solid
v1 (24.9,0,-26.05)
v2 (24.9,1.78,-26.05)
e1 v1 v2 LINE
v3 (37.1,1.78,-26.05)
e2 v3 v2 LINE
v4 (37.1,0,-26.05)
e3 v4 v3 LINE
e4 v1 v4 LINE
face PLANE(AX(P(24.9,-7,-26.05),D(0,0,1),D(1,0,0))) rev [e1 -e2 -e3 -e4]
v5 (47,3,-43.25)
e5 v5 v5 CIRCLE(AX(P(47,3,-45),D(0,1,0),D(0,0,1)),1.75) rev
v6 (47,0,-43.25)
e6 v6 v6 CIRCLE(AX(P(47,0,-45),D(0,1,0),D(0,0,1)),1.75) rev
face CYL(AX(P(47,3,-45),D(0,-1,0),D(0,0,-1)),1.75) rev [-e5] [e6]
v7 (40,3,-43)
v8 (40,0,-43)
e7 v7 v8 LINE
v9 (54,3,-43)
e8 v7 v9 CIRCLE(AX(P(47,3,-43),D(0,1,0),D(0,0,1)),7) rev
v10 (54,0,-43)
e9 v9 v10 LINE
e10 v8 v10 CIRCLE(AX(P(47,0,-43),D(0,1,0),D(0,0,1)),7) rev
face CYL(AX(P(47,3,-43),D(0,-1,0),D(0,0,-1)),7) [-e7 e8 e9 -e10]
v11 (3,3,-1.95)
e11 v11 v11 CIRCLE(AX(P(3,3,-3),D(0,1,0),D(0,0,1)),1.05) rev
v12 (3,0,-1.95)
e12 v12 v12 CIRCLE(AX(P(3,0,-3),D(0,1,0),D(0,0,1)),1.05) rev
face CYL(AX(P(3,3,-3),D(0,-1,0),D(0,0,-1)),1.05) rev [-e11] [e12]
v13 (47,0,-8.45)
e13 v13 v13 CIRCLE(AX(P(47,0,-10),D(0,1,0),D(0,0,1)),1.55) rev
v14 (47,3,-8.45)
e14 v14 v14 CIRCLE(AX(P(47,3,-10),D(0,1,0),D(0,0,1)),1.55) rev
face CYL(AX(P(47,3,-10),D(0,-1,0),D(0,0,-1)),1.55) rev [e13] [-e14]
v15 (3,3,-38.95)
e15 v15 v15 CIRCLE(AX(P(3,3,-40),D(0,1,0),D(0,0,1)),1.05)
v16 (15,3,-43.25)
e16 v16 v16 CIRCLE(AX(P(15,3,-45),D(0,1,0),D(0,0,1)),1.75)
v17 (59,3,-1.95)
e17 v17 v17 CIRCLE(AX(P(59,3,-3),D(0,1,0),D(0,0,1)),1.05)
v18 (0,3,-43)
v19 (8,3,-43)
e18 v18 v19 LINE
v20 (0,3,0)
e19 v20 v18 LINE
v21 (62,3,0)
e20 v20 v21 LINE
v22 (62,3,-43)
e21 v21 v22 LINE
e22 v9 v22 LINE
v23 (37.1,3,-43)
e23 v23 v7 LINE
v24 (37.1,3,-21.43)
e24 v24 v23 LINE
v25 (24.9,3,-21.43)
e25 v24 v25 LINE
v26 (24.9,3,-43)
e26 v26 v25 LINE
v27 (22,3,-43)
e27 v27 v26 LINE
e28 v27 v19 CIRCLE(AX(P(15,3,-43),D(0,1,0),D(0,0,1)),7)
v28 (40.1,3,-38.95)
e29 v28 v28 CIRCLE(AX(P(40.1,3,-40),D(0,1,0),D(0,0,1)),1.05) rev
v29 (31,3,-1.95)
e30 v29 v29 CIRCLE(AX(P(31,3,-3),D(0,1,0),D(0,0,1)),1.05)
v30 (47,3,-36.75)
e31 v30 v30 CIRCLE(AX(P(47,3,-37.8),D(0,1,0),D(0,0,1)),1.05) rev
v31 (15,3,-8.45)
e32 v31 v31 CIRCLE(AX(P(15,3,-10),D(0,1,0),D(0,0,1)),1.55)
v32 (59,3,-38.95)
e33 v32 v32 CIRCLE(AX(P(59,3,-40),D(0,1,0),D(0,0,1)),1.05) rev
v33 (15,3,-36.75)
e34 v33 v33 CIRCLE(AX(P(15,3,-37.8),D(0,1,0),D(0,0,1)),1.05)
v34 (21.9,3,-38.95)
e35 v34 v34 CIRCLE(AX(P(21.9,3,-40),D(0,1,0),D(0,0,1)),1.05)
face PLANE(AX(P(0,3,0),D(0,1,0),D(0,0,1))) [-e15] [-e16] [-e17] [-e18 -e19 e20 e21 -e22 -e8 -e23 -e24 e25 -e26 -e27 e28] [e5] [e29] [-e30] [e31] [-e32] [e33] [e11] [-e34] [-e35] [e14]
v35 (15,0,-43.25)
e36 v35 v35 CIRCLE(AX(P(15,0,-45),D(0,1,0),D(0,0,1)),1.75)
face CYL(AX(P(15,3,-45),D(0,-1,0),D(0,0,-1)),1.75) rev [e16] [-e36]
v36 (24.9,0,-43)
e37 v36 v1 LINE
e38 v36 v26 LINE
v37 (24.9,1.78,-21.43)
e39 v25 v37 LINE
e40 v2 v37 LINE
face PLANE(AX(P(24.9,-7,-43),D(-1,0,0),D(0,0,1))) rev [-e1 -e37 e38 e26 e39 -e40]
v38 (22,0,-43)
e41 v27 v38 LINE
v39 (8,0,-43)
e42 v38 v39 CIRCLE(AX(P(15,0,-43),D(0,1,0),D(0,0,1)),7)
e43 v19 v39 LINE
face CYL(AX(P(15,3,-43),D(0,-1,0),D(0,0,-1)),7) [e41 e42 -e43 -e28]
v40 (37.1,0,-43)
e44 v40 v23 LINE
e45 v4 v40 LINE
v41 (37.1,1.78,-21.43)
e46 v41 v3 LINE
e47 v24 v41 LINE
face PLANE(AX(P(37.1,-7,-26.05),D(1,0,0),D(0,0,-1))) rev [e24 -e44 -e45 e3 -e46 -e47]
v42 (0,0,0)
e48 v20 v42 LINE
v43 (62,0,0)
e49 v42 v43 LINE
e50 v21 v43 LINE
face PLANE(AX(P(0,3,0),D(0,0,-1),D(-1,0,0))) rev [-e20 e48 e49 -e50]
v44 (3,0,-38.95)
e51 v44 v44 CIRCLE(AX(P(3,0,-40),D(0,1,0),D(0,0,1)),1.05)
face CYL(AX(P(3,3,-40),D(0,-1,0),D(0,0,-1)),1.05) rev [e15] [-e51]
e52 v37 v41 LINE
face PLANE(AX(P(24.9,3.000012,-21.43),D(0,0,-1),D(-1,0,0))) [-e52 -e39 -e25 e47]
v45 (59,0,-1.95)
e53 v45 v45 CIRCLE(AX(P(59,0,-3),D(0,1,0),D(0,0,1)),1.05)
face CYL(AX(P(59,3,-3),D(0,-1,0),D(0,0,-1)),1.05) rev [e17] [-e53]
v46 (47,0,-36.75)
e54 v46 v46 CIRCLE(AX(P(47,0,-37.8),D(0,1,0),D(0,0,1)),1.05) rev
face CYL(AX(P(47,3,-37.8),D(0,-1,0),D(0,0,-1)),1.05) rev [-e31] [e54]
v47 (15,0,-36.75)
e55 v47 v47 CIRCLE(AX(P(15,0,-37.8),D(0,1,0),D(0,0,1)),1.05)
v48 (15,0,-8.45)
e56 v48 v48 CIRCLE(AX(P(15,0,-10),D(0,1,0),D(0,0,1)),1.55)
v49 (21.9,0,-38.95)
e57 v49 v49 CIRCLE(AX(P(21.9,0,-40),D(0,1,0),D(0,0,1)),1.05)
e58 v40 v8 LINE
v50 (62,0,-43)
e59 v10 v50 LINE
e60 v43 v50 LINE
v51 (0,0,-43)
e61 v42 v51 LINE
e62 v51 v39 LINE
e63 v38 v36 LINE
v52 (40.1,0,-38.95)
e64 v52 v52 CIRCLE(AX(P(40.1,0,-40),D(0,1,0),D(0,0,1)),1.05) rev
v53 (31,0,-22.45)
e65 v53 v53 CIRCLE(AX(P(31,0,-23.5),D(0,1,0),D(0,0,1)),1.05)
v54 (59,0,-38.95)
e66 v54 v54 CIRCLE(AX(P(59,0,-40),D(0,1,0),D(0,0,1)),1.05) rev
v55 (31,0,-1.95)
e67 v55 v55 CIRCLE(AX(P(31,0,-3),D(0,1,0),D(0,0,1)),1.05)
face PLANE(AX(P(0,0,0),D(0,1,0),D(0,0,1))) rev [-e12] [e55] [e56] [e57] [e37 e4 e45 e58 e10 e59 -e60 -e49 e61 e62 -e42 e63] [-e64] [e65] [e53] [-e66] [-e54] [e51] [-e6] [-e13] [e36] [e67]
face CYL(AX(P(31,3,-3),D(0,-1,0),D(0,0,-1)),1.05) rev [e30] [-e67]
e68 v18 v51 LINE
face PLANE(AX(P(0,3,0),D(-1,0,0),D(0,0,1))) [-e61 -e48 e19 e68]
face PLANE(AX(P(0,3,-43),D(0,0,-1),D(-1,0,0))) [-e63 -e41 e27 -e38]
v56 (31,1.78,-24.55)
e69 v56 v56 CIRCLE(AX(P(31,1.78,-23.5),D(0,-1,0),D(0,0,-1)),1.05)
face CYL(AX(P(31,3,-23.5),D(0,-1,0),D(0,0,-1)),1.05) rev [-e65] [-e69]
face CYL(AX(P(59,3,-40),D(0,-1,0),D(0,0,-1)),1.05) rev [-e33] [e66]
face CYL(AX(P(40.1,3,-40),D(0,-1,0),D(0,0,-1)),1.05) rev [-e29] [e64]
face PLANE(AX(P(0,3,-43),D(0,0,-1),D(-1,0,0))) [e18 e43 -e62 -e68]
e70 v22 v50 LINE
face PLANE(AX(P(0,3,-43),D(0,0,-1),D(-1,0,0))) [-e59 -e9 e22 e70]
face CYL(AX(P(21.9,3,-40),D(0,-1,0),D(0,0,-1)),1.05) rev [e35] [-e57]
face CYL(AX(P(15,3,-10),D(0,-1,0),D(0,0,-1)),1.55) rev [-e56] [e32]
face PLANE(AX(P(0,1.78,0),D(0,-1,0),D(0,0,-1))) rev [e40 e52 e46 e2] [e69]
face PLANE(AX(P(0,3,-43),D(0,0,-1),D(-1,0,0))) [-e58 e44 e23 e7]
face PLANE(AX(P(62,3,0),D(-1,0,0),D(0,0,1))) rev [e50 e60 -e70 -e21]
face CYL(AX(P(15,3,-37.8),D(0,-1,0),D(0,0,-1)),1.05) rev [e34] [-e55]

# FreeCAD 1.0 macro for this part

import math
import FreeCAD as App
import Part
import Sketcher

doc = App.newDocument("Part")
body = doc.addObject("PartDesign::Body", "Body")

sketch1 = body.newObject("Sketcher::SketchObject", "Sketch")
sketch1.AttachmentSupport = (doc.getObject("XZ_Plane"), [""])
sketch1.MapMode = "FlatFace"
sketch1.addGeometry([
    Part.LineSegment(App.Vector(0, -43, 0), App.Vector(0, 0, 0)),
    Part.LineSegment(App.Vector(0, 0, 0), App.Vector(62, 0, 0)),
    Part.LineSegment(App.Vector(62, 0, 0), App.Vector(62, -43, 0)),
    Part.LineSegment(App.Vector(62, -43, 0), App.Vector(54, -43, 0)),
    Part.ArcOfCircle(Part.Circle(App.Vector(47, -43, 0), App.Vector(0, 0, 1), 7), math.radians(180), math.radians(360)),
    Part.LineSegment(App.Vector(40, -43, 0), App.Vector(22, -43, 0)),
    Part.ArcOfCircle(Part.Circle(App.Vector(15, -43, 0), App.Vector(0, 0, 1), 7), math.radians(180), math.radians(360)),
    Part.LineSegment(App.Vector(8, -43, 0), App.Vector(0, -43, 0)),
    Part.Circle(App.Vector(3, -3, 0), App.Vector(0, 0, 1), 1.1),
    Part.Circle(App.Vector(15, -10, 0), App.Vector(0, 0, 1), 1.6),
    Part.Circle(App.Vector(31, -3, 0), App.Vector(0, 0, 1), 1.1),
    Part.Circle(App.Vector(59, -3, 0), App.Vector(0, 0, 1), 1.1),
    Part.Circle(App.Vector(47, -10, 0), App.Vector(0, 0, 1), 1.6),
    Part.Circle(App.Vector(31, -23.5, 0), App.Vector(0, 0, 1), 1.1),
    Part.Circle(App.Vector(3, -40, 0), App.Vector(0, 0, 1), 1.1),
    Part.Circle(App.Vector(15, -37.8, 0), App.Vector(0, 0, 1), 1.1),
    Part.Circle(App.Vector(15, -45, 0), App.Vector(0, 0, 1), 1.8),
    Part.Circle(App.Vector(21.9, -40, 0), App.Vector(0, 0, 1), 1.1),
    Part.Circle(App.Vector(40.1, -40, 0), App.Vector(0, 0, 1), 1.1),
    Part.Circle(App.Vector(47, -37.8, 0), App.Vector(0, 0, 1), 1.1),
    Part.Circle(App.Vector(59, -40, 0), App.Vector(0, 0, 1), 1.1),
    Part.Circle(App.Vector(47, -45, 0), App.Vector(0, 0, 1), 1.8),
], False)
sketch1.addConstraint([
    Sketcher.Constraint("Coincident", 0, 2, 1, 1),
    Sketcher.Constraint("Coincident", 1, 2, 2, 1),
    Sketcher.Constraint("Coincident", 2, 2, 3, 1),
    Sketcher.Constraint("Coincident", 3, 2, 4, 2),
    Sketcher.Constraint("Coincident", 4, 1, 5, 1),
    Sketcher.Constraint("Coincident", 5, 2, 6, 2),
    Sketcher.Constraint("Coincident", 6, 1, 7, 1),
    Sketcher.Constraint("Coincident", 7, 2, 0, 1),
    Sketcher.Constraint("Vertical", 0),
    Sketcher.Constraint("Horizontal", 1),
    Sketcher.Constraint("Vertical", 2),
    Sketcher.Constraint("Horizontal", 3),
    Sketcher.Constraint("Horizontal", 5),
    Sketcher.Constraint("Horizontal", 7),
    Sketcher.Constraint("Coincident", 0, 2, -1, 1),
    Sketcher.Constraint("Equal", 4, 6),
    Sketcher.Constraint("Equal", 8, 10),
    Sketcher.Constraint("Equal", 10, 11),
    Sketcher.Constraint("Equal", 9, 12),
    Sketcher.Constraint("Equal", 11, 13),
    Sketcher.Constraint("Equal", 13, 14),
    Sketcher.Constraint("Equal", 14, 15),
    Sketcher.Constraint("Equal", 15, 17),
    Sketcher.Constraint("Equal", 17, 18),
    Sketcher.Constraint("Equal", 18, 19),
    Sketcher.Constraint("Equal", 19, 20),
    Sketcher.Constraint("Equal", 16, 21),
    Sketcher.Constraint("Horizontal", 4, 3, 6, 3),
    Sketcher.Constraint("Horizontal", 8, 3, 10, 3),
    Sketcher.Constraint("Horizontal", 10, 3, 11, 3),
    Sketcher.Constraint("Horizontal", 9, 3, 12, 3),
    Sketcher.Constraint("Horizontal", 14, 3, 17, 3),
    Sketcher.Constraint("Horizontal", 17, 3, 18, 3),
    Sketcher.Constraint("Horizontal", 15, 3, 19, 3),
    Sketcher.Constraint("Horizontal", 18, 3, 20, 3),
    Sketcher.Constraint("Horizontal", 16, 3, 21, 3),
    Sketcher.Constraint("Horizontal", 6, 3, 2, 2),
    Sketcher.Constraint("Horizontal", 3, 2, 4, 1),
    Sketcher.Constraint("Horizontal", 5, 2, 6, 1),
    Sketcher.Constraint("Vertical", 6, 3, 9, 3),
    Sketcher.Constraint("Vertical", 4, 3, 12, 3),
    Sketcher.Constraint("Vertical", 10, 3, 13, 3),
    Sketcher.Constraint("Vertical", 8, 3, 14, 3),
    Sketcher.Constraint("Vertical", 9, 3, 15, 3),
    Sketcher.Constraint("Vertical", 15, 3, 16, 3),
    Sketcher.Constraint("Vertical", 12, 3, 19, 3),
    Sketcher.Constraint("Vertical", 11, 3, 20, 3),
    Sketcher.Constraint("Vertical", 19, 3, 21, 3),
    Sketcher.Constraint("Equal", 3, 7),
    Sketcher.Constraint("Radius", 4, 7.0),
    Sketcher.Constraint("Diameter", 8, 2.1),
    Sketcher.Constraint("Diameter", 9, 3.1),
    Sketcher.Constraint("Diameter", 16, 3.5),
    Sketcher.Constraint("DistanceX", 1, 1, 1, 2, 62.0),
    Sketcher.Constraint("DistanceX", 3, 2, 3, 1, 8.0),
    Sketcher.Constraint("DistanceY", 0, 1, 0, 2, 43.0),
    Sketcher.Constraint("DistanceX", -1, 1, 8, 3, 3.0),
    Sketcher.Constraint("DistanceY", 8, 3, -1, 1, 3.0),
    Sketcher.Constraint("DistanceY", 9, 3, -1, 1, 10.0),
    Sketcher.Constraint("DistanceX", -1, 1, 10, 3, 31.0),
    Sketcher.Constraint("DistanceX", -1, 1, 11, 3, 59.0),
    Sketcher.Constraint("DistanceY", 14, 3, -1, 1, 40.0),
    Sketcher.Constraint("DistanceY", 16, 3, -1, 1, 45.0),
    Sketcher.Constraint("DistanceY", 13, 3, -1, 1, 23.5),
    Sketcher.Constraint("DistanceY", 15, 3, -1, 1, 37.8),
    Sketcher.Constraint("DistanceX", -1, 1, 17, 3, 21.9),
    Sketcher.Constraint("DistanceX", -1, 1, 18, 3, 40.1),
])
pad1 = body.newObject("PartDesign::Pad", "Pad")
pad1.Profile = sketch1
pad1.Length = 3
pad1.Reversed = True

sketch2 = body.newObject("Sketcher::SketchObject", "Sketch001")
sketch2.AttachmentSupport = (doc.getObject("XZ_Plane"), [""])
sketch2.MapMode = "FlatFace"
sketch2.AttachmentOffset = App.Placement(App.Vector(0, 0, -3), App.Rotation())
sketch2.addGeometry([
    Part.LineSegment(App.Vector(37, -43, 0), App.Vector(25, -43, 0)),
    Part.LineSegment(App.Vector(25, -43, 0), App.Vector(25, -26, 0)),
    Part.LineSegment(App.Vector(25, -26, 0), App.Vector(37, -26, 0)),
    Part.LineSegment(App.Vector(37, -26, 0), App.Vector(37, -43, 0)),
], False)
sketch2.addConstraint([
    Sketcher.Constraint("Coincident", 0, 2, 1, 1),
    Sketcher.Constraint("Coincident", 1, 2, 2, 1),
    Sketcher.Constraint("Coincident", 2, 2, 3, 1),
    Sketcher.Constraint("Coincident", 3, 2, 0, 1),
    Sketcher.Constraint("Horizontal", 0),
    Sketcher.Constraint("Vertical", 1),
    Sketcher.Constraint("Horizontal", 2),
    Sketcher.Constraint("Vertical", 3),
    Sketcher.Constraint("DistanceX", 0, 2, 0, 1, 12.2),
    Sketcher.Constraint("DistanceY", 0, 2, -1, 1, 43.0),
    Sketcher.Constraint("DistanceY", 1, 1, 1, 2, 16.95),
    Sketcher.Constraint("DistanceX", -1, 1, 0, 2, 24.9),
])
pocket1 = body.newObject("PartDesign::Pocket", "Pocket")
pocket1.Profile = sketch2
pocket1.Length = 10
pocket1.Reversed = True

sketch3 = body.newObject("Sketcher::SketchObject", "Sketch002")
sketch3.AttachmentSupport = (doc.getObject("XZ_Plane"), [""])
sketch3.MapMode = "FlatFace"
sketch3.AttachmentOffset = App.Placement(App.Vector(0, 0, -3), App.Rotation())
sketch3.addGeometry([
    Part.LineSegment(App.Vector(24.9, -26.1, 0), App.Vector(24.9, -21.4, 0)),
    Part.LineSegment(App.Vector(24.9, -21.4, 0), App.Vector(37.1, -21.4, 0)),
    Part.LineSegment(App.Vector(37.1, -21.4, 0), App.Vector(37.1, -26.1, 0)),
    Part.LineSegment(App.Vector(37.1, -26.1, 0), App.Vector(24.9, -26.1, 0)),
], False)
sketch3.addConstraint([
    Sketcher.Constraint("Coincident", 0, 2, 1, 1),
    Sketcher.Constraint("Coincident", 1, 2, 2, 1),
    Sketcher.Constraint("Coincident", 2, 2, 3, 1),
    Sketcher.Constraint("Coincident", 3, 2, 0, 1),
    Sketcher.Constraint("Vertical", 0),
    Sketcher.Constraint("Horizontal", 1),
    Sketcher.Constraint("Vertical", 2),
    Sketcher.Constraint("Horizontal", 3),
    Sketcher.Constraint("DistanceX", 1, 1, 1, 2, 12.2),
    Sketcher.Constraint("DistanceY", 0, 1, 0, 2, 4.62),
    Sketcher.Constraint("DistanceX", -1, 1, 0, 2, 24.9),
    Sketcher.Constraint("DistanceY", 0, 2, -1, 1, 21.43),
])
pocket2 = body.newObject("PartDesign::Pocket", "Pocket001")
pocket2.Profile = sketch3
pocket2.Type = "TwoLengths"
pocket2.Length = 1
pocket2.Length2 = 1.22

doc.recompute()
